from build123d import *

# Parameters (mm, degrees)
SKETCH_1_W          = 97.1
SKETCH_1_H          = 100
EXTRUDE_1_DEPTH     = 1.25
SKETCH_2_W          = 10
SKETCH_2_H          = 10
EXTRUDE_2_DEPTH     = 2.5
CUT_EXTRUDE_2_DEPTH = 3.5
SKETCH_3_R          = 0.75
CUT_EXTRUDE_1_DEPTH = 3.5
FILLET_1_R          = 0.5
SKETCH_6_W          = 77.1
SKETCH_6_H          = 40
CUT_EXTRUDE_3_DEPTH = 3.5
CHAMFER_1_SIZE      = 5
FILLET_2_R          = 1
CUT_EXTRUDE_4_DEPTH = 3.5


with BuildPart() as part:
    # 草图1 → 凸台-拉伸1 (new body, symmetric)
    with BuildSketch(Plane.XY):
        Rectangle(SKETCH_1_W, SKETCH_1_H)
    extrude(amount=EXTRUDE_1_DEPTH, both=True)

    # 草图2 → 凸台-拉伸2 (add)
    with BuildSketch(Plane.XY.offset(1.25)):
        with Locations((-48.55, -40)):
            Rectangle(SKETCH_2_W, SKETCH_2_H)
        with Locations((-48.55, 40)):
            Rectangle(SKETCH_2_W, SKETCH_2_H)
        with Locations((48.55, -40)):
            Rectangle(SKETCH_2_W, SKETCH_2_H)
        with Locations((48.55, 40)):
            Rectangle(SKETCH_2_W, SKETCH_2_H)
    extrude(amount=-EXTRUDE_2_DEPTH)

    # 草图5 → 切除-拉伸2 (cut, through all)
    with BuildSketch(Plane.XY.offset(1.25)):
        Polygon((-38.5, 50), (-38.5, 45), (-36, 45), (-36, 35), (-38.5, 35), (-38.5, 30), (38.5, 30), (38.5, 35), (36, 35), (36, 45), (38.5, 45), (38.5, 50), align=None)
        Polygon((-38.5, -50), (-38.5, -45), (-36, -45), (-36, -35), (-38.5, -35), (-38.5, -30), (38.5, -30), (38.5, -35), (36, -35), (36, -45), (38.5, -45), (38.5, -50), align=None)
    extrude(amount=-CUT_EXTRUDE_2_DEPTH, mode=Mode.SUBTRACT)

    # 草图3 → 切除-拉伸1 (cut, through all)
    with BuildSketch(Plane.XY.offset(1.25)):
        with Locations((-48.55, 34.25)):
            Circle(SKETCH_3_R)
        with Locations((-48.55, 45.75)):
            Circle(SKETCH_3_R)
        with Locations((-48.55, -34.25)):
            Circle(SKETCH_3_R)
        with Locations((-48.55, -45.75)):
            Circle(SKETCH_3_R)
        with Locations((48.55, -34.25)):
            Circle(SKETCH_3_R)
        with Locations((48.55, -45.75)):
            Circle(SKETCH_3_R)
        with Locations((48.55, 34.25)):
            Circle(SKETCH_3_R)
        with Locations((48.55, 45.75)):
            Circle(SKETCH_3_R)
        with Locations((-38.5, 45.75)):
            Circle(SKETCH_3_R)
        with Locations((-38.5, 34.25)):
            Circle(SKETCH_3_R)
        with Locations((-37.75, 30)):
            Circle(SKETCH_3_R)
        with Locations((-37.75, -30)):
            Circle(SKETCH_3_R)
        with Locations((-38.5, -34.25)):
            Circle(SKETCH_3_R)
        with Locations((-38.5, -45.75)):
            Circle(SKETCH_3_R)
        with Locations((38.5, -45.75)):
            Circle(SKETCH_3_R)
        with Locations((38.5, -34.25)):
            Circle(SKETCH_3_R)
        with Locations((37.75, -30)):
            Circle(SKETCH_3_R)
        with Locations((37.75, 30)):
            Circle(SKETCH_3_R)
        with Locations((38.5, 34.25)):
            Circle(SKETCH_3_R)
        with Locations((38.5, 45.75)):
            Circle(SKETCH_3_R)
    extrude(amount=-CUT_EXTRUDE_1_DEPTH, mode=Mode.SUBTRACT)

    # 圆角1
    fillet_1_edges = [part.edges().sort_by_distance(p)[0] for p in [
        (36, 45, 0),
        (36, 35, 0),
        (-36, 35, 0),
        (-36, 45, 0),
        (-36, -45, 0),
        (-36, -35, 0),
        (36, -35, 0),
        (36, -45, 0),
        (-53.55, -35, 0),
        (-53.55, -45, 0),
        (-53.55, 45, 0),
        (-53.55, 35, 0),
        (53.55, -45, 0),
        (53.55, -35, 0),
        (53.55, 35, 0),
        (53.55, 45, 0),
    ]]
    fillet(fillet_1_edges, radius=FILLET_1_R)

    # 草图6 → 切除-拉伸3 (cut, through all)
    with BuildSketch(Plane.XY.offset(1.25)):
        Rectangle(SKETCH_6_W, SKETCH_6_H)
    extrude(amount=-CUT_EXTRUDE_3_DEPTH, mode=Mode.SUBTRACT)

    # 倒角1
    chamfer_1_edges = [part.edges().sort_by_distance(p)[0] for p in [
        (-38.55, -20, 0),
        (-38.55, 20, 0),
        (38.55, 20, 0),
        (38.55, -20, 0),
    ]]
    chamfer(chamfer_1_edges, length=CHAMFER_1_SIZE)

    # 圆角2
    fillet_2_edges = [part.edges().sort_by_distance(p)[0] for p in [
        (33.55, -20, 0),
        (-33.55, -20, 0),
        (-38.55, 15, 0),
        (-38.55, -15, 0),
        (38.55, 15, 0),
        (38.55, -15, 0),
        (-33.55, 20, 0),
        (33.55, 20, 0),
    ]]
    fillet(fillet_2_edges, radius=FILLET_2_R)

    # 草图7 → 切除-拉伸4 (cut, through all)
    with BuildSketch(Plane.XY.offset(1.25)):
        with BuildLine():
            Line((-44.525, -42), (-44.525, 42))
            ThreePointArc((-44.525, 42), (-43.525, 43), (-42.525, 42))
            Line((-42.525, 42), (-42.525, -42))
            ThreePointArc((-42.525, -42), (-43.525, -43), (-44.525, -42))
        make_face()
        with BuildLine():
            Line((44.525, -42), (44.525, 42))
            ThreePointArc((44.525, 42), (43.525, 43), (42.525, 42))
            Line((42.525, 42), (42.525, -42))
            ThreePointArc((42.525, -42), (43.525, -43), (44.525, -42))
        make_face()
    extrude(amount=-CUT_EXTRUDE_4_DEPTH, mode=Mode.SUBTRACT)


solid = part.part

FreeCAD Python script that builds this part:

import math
import FreeCAD as App
import Part
import Sketcher
Q = App.Units.Quantity


def edges_at(feature, points):
    """Names of the edges that pass closest to the given points."""
    edges = feature.Shape.Edges
    near = lambda p: min(range(len(edges)), key=lambda i: edges[i].distToShape(Part.Vertex(*p))[0])
    return sorted({f"Edge{near(p) + 1}" for p in points})


def add_polygon(sketch, points):
    """Adds a closed chain of lines whose ends are joined by coincident constraints."""
    first, n = sketch.GeometryCount, len(points)
    for a, b in zip(points, points[1:] + points[:1]):
        sketch.addGeometry(Part.LineSegment(App.Vector(*a, 0), App.Vector(*b, 0)), False)
    for i in range(n):
        sketch.addConstraint(Sketcher.Constraint("Coincident", first + i, 2, first + (i + 1) % n, 1))

doc = App.newDocument("Part")
body = doc.addObject("PartDesign::Body", "Body")

sketch1 = doc.addObject("Sketcher::SketchObject", "Sketch")
body.addObject(sketch1)
sketch1.AttachmentSupport = (doc.XY_Plane, [""])
sketch1.MapMode = "FlatFace"
add_polygon(sketch1, [(-49, 50), (-49, -50), (49, -50), (49, 50)])
sketch1.addConstraint([
    Sketcher.Constraint("Vertical", 0),
    Sketcher.Constraint("Horizontal", 1),
    Sketcher.Constraint("Vertical", 2),
    Sketcher.Constraint("Horizontal", 3),
    Sketcher.Constraint("Symmetric", 0, 2, 2, 2, -1, 1),
    Sketcher.Constraint("DistanceY", 0, 2, 0, 1, Q("100 mm")),
    Sketcher.Constraint("DistanceX", 1, 1, 1, 2, Q("97.1 mm")),
])
pad1 = doc.addObject("PartDesign::Pad", "Pad")
body.addObject(pad1)
pad1.Profile = sketch1
pad1.Length = 2.5
pad1.Midplane = True

sketch2 = doc.addObject("Sketcher::SketchObject", "Sketch001")
body.addObject(sketch2)
sketch2.AttachmentSupport = (doc.XY_Plane, [""])
sketch2.MapMode = "FlatFace"
sketch2.AttachmentOffset = App.Placement(App.Vector(0, 0, 1.25), App.Rotation())
add_polygon(sketch2, [(-54, -35), (-54, -45), (-44, -45), (-44, -35)])
add_polygon(sketch2, [(-54, 45), (-54, 35), (-44, 35), (-44, 45)])
add_polygon(sketch2, [(44, -35), (44, -45), (54, -45), (54, -35)])
add_polygon(sketch2, [(44, 45), (44, 35), (54, 35), (54, 45)])
sketch2.addConstraint([
    Sketcher.Constraint("Vertical", 0),
    Sketcher.Constraint("Horizontal", 1),
    Sketcher.Constraint("Vertical", 2),
    Sketcher.Constraint("Horizontal", 3),
    Sketcher.Constraint("Vertical", 4),
    Sketcher.Constraint("Horizontal", 5),
    Sketcher.Constraint("Vertical", 6),
    Sketcher.Constraint("Horizontal", 7),
    Sketcher.Constraint("Vertical", 8),
    Sketcher.Constraint("Horizontal", 9),
    Sketcher.Constraint("Vertical", 10),
    Sketcher.Constraint("Horizontal", 11),
    Sketcher.Constraint("Vertical", 12),
    Sketcher.Constraint("Horizontal", 13),
    Sketcher.Constraint("Vertical", 14),
    Sketcher.Constraint("Horizontal", 15),
    Sketcher.Constraint("Symmetric", 6, 2, 8, 2, -1, 1),
    Sketcher.Constraint("Symmetric", 4, 2, 10, 2, -1, 1),
    Sketcher.Constraint("Symmetric", 2, 2, 12, 2, -1, 1),
    Sketcher.Constraint("Symmetric", 0, 2, 14, 2, -1, 1),
    Sketcher.Constraint("Symmetric", 1, 2, 8, 2, -2),
    Sketcher.Constraint("Symmetric", 3, 2, 10, 2, -2),
    Sketcher.Constraint("Equal", 15, 0),
    Sketcher.Constraint("DistanceX", 1, 1, 1, 2, Q("10 mm")),
    Sketcher.Constraint("DistanceY", 0, 2, -1, 1, Q("45 mm")),
    Sketcher.Constraint("DistanceX", 1, 2, 8, 2, Q("87.1 mm")),
])
pad2 = doc.addObject("PartDesign::Pad", "Pad001")
body.addObject(pad2)
pad2.Profile = sketch2
pad2.Length = 2.5
pad2.Reversed = True

sketch3 = doc.addObject("Sketcher::SketchObject", "Sketch002")
body.addObject(sketch3)
sketch3.AttachmentSupport = (doc.XY_Plane, [""])
sketch3.MapMode = "FlatFace"
sketch3.AttachmentOffset = App.Placement(App.Vector(0, 0, 1.25), App.Rotation())
add_polygon(sketch3, [(-38.5, 50), (-38.5, 45), (-36, 45), (-36, 35), (-38.5, 35), (-38.5, 30), (38.5, 30), (38.5, 35), (36, 35), (36, 45), (38.5, 45), (38.5, 50)])
add_polygon(sketch3, [(-38.5, -45), (-38.5, -50), (38.5, -50), (38.5, -45), (36, -45), (36, -35), (38.5, -35), (38.5, -30), (-38.5, -30), (-38.5, -35), (-36, -35), (-36, -45)])
sketch3.addConstraint([
    Sketcher.Constraint("Vertical", 0),
    Sketcher.Constraint("Horizontal", 1),
    Sketcher.Constraint("Vertical", 2),
    Sketcher.Constraint("Horizontal", 3),
    Sketcher.Constraint("Vertical", 4),
    Sketcher.Constraint("Horizontal", 5),
    Sketcher.Constraint("Vertical", 6),
    Sketcher.Constraint("Horizontal", 7),
    Sketcher.Constraint("Vertical", 8),
    Sketcher.Constraint("Horizontal", 9),
    Sketcher.Constraint("Vertical", 10),
    Sketcher.Constraint("Horizontal", 11),
    Sketcher.Constraint("Vertical", 12),
    Sketcher.Constraint("Horizontal", 13),
    Sketcher.Constraint("Vertical", 14),
    Sketcher.Constraint("Horizontal", 15),
    Sketcher.Constraint("Vertical", 16),
    Sketcher.Constraint("Horizontal", 17),
    Sketcher.Constraint("Vertical", 18),
    Sketcher.Constraint("Horizontal", 19),
    Sketcher.Constraint("Vertical", 20),
    Sketcher.Constraint("Horizontal", 21),
    Sketcher.Constraint("Vertical", 22),
    Sketcher.Constraint("Horizontal", 23),
    Sketcher.Constraint("Symmetric", 10, 2, 12, 2, -1, 1),
    Sketcher.Constraint("Symmetric", 0, 2, 14, 2, -1, 1),
    Sketcher.Constraint("Symmetric", 2, 2, 16, 2, -1, 1),
    Sketcher.Constraint("Symmetric", 4, 2, 18, 2, -1, 1),
    Sketcher.Constraint("Symmetric", 6, 2, 20, 2, -1, 1),
    Sketcher.Constraint("Symmetric", 8, 2, 22, 2, -1, 1),
    Sketcher.Constraint("Symmetric", 3, 2, 6, 2, -2),
    Sketcher.Constraint("Symmetric", 1, 2, 8, 2, -2),
    Sketcher.Constraint("Vertical", 0, 2, 3, 2),
    Sketcher.Constraint("Vertical", 6, 2, 9, 2),
    Sketcher.Constraint("Equal", 0, 4),
    Sketcher.Constraint("DistanceX", 5, 1, 5, 2, Q("77 mm")),
    Sketcher.Constraint("DistanceY", 0, 2, 0, 1, Q("5 mm")),
    Sketcher.Constraint("DistanceY", 2, 2, 2, 1, Q("10 mm")),
    Sketcher.Constraint("DistanceX", 1, 1, 1, 2, Q("2.5 mm")),
    Sketcher.Constraint("DistanceY", -1, 1, 0, 2, Q("45 mm")),
])
pocket1 = doc.addObject("PartDesign::Pocket", "Pocket")
body.addObject(pocket1)
pocket1.Profile = sketch3
pocket1.Type = "ThroughAll"

sketch4 = doc.addObject("Sketcher::SketchObject", "Sketch003")
body.addObject(sketch4)
sketch4.AttachmentSupport = (doc.XY_Plane, [""])
sketch4.MapMode = "FlatFace"
sketch4.AttachmentOffset = App.Placement(App.Vector(0, 0, 1.25), App.Rotation())
sketch4.addGeometry([
    Part.Circle(App.Vector(-48.5, 34.2, 0), App.Vector(0, 0, 1), 0.8),
    Part.Circle(App.Vector(-48.5, 45.8, 0), App.Vector(0, 0, 1), 0.8),
    Part.Circle(App.Vector(-48.5, -34.2, 0), App.Vector(0, 0, 1), 0.8),
    Part.Circle(App.Vector(-48.5, -45.8, 0), App.Vector(0, 0, 1), 0.8),
    Part.Circle(App.Vector(48.5, -34.2, 0), App.Vector(0, 0, 1), 0.8),
    Part.Circle(App.Vector(48.5, -45.8, 0), App.Vector(0, 0, 1), 0.8),
    Part.Circle(App.Vector(48.5, 34.2, 0), App.Vector(0, 0, 1), 0.8),
    Part.Circle(App.Vector(48.5, 45.8, 0), App.Vector(0, 0, 1), 0.8),
    Part.Circle(App.Vector(-38.5, 45.8, 0), App.Vector(0, 0, 1), 0.8),
    Part.Circle(App.Vector(-38.5, 34.2, 0), App.Vector(0, 0, 1), 0.8),
    Part.Circle(App.Vector(-37.8, 30, 0), App.Vector(0, 0, 1), 0.8),
    Part.Circle(App.Vector(-37.8, -30, 0), App.Vector(0, 0, 1), 0.8),
    Part.Circle(App.Vector(-38.5, -34.2, 0), App.Vector(0, 0, 1), 0.8),
    Part.Circle(App.Vector(-38.5, -45.8, 0), App.Vector(0, 0, 1), 0.8),
    Part.Circle(App.Vector(38.5, -45.8, 0), App.Vector(0, 0, 1), 0.8),
    Part.Circle(App.Vector(38.5, -34.2, 0), App.Vector(0, 0, 1), 0.8),
    Part.Circle(App.Vector(37.8, -30, 0), App.Vector(0, 0, 1), 0.8),
    Part.Circle(App.Vector(37.8, 30, 0), App.Vector(0, 0, 1), 0.8),
    Part.Circle(App.Vector(38.5, 34.2, 0), App.Vector(0, 0, 1), 0.8),
    Part.Circle(App.Vector(38.5, 45.8, 0), App.Vector(0, 0, 1), 0.8),
], False)
sketch4.addConstraint([
    Sketcher.Constraint("Equal", 0, 1),
    Sketcher.Constraint("Equal", 1, 2),
    Sketcher.Constraint("Equal", 2, 3),
    Sketcher.Constraint("Equal", 3, 4),
    Sketcher.Constraint("Equal", 4, 5),
    Sketcher.Constraint("Equal", 5, 6),
    Sketcher.Constraint("Equal", 6, 7),
    Sketcher.Constraint("Equal", 7, 8),
    Sketcher.Constraint("Equal", 8, 9),
    Sketcher.Constraint("Equal", 9, 10),
    Sketcher.Constraint("Equal", 10, 11),
    Sketcher.Constraint("Equal", 11, 12),
    Sketcher.Constraint("Equal", 12, 13),
    Sketcher.Constraint("Equal", 13, 14),
    Sketcher.Constraint("Equal", 14, 15),
    Sketcher.Constraint("Equal", 15, 16),
    Sketcher.Constraint("Equal", 16, 17),
    Sketcher.Constraint("Equal", 17, 18),
    Sketcher.Constraint("Equal", 18, 19),
    Sketcher.Constraint("Symmetric", 0, 3, 4, 3, -1, 1),
    Sketcher.Constraint("Symmetric", 1, 3, 5, 3, -1, 1),
    Sketcher.Constraint("Symmetric", 2, 3, 6, 3, -1, 1),
    Sketcher.Constraint("Symmetric", 3, 3, 7, 3, -1, 1),
    Sketcher.Constraint("Symmetric", 8, 3, 14, 3, -1, 1),
    Sketcher.Constraint("Symmetric", 9, 3, 15, 3, -1, 1),
    Sketcher.Constraint("Symmetric", 10, 3, 16, 3, -1, 1),
    Sketcher.Constraint("Symmetric", 11, 3, 17, 3, -1, 1),
    Sketcher.Constraint("Symmetric", 12, 3, 18, 3, -1, 1),
    Sketcher.Constraint("Symmetric", 13, 3, 19, 3, -1, 1),
    Sketcher.Constraint("Symmetric", 2, 3, 4, 3, -2),
    Sketcher.Constraint("Symmetric", 3, 3, 5, 3, -2),
    Sketcher.Constraint("Symmetric", 13, 3, 14, 3, -2),
    Sketcher.Constraint("Symmetric", 12, 3, 15, 3, -2),
    Sketcher.Constraint("Symmetric", 11, 3, 16, 3, -2),
    Sketcher.Constraint("Horizontal", 7, 3, 8, 3),
    Sketcher.Constraint("Horizontal", 6, 3, 9, 3),
    Sketcher.Constraint("Vertical", 0, 3, 1, 3),
    Sketcher.Constraint("Vertical", 8, 3, 9, 3),
    Sketcher.Constraint("Diameter", 0, Q("1.5 mm")),
    Sketcher.Constraint("DistanceY", -1, 1, 10, 3, Q("30 mm")),
    Sketcher.Constraint("DistanceY", 2, 3, 1, 3, Q("80 mm")),
    Sketcher.Constraint("DistanceX", 13, 3, 14, 3, Q("77 mm")),
    Sketcher.Constraint("DistanceY", 0, 3, 1, 3, Q("11.5 mm")),
    Sketcher.Constraint("DistanceX", 2, 3, 4, 3, Q("97.1 mm")),
    Sketcher.Constraint("DistanceX", 0, 3, 10, 3, Q("10.8 mm")),
])
pocket2 = doc.addObject("PartDesign::Pocket", "Pocket001")
body.addObject(pocket2)
pocket2.Profile = sketch4
pocket2.Type = "ThroughAll"
doc.recompute()

fillet = doc.addObject("PartDesign::Fillet", "Fillet")
body.addObject(fillet)
fillet.Base = (pocket2, edges_at(pocket2, [
    (36, 45, 0),
    (36, 35, 0),
    (-36, 35, 0),
    (-36, 45, 0),
    (-36, -45, 0),
    (-36, -35, 0),
    (36, -35, 0),
    (36, -45, 0),
    (-53.55, -35, 0),
    (-53.55, -45, 0),
    (-53.55, 45, 0),
    (-53.55, 35, 0),
    (53.55, -45, 0),
    (53.55, -35, 0),
    (53.55, 35, 0),
    (53.55, 45, 0),
]))
fillet.Radius = 0.5

sketch5 = doc.addObject("Sketcher::SketchObject", "Sketch004")
body.addObject(sketch5)
sketch5.AttachmentSupport = (doc.XY_Plane, [""])
sketch5.MapMode = "FlatFace"
sketch5.AttachmentOffset = App.Placement(App.Vector(0, 0, 1.25), App.Rotation())
add_polygon(sketch5, [(-39, 20), (-39, -20), (39, -20), (39, 20)])
sketch5.addConstraint([
    Sketcher.Constraint("Vertical", 0),
    Sketcher.Constraint("Horizontal", 1),
    Sketcher.Constraint("Vertical", 2),
    Sketcher.Constraint("Horizontal", 3),
    Sketcher.Constraint("Symmetric", 0, 2, 2, 2, -1, 1),
    Sketcher.Constraint("DistanceY", 0, 2, 0, 1, Q("40 mm")),
    Sketcher.Constraint("DistanceX", 1, 1, 1, 2, Q("77.1 mm")),
])
pocket3 = doc.addObject("PartDesign::Pocket", "Pocket002")
body.addObject(pocket3)
pocket3.Profile = sketch5
pocket3.Type = "ThroughAll"
doc.recompute()

chamfer = doc.addObject("PartDesign::Chamfer", "Chamfer")
body.addObject(chamfer)
chamfer.Base = (pocket3, edges_at(pocket3, [
    (-38.55, -20, 0),
    (-38.55, 20, 0),
    (38.55, 20, 0),
    (38.55, -20, 0),
]))
chamfer.Size = 5
doc.recompute()

fillet2 = doc.addObject("PartDesign::Fillet", "Fillet001")
body.addObject(fillet2)
fillet2.Base = (chamfer, edges_at(chamfer, [
    (33.55, -20, 0),
    (-33.55, -20, 0),
    (-38.55, 15, 0),
    (-38.55, -15, 0),
    (38.55, 15, 0),
    (38.55, -15, 0),
    (-33.55, 20, 0),
    (33.55, 20, 0),
]))
fillet2.Radius = 1

sketch6 = doc.addObject("Sketcher::SketchObject", "Sketch005")
body.addObject(sketch6)
sketch6.AttachmentSupport = (doc.XY_Plane, [""])
sketch6.MapMode = "FlatFace"
sketch6.AttachmentOffset = App.Placement(App.Vector(0, 0, 1.25), App.Rotation())
sketch6.addGeometry([
    Part.LineSegment(App.Vector(-44.5, 42, 0), App.Vector(-44.5, -42, 0)),
    Part.ArcOfCircle(Part.Circle(App.Vector(-43.5, -42, 0), App.Vector(0, 0, 1), 1), math.radians(180), math.radians(360)),
    Part.LineSegment(App.Vector(-42.5, -42, 0), App.Vector(-42.5, 42, 0)),
    Part.ArcOfCircle(Part.Circle(App.Vector(-43.5, 42, 0), App.Vector(0, 0, 1), 1), math.radians(0), math.radians(180)),
    Part.LineSegment(App.Vector(44.5, -42, 0), App.Vector(44.5, 42, 0)),
    Part.ArcOfCircle(Part.Circle(App.Vector(43.5, 42, 0), App.Vector(0, 0, 1), 1), math.radians(0), math.radians(180)),
    Part.LineSegment(App.Vector(42.5, 42, 0), App.Vector(42.5, -42, 0)),
    Part.ArcOfCircle(Part.Circle(App.Vector(43.5, -42, 0), App.Vector(0, 0, 1), 1), math.radians(180), math.radians(360)),
], False)
sketch6.addConstraint([
    Sketcher.Constraint("Tangent", 0, 2, 1, 1),
    Sketcher.Constraint("Tangent", 1, 2, 2, 1),
    Sketcher.Constraint("Tangent", 2, 2, 3, 1),
    Sketcher.Constraint("Tangent", 3, 2, 0, 1),
    Sketcher.Constraint("Tangent", 4, 2, 5, 1),
    Sketcher.Constraint("Tangent", 5, 2, 6, 1),
    Sketcher.Constraint("Tangent", 6, 2, 7, 1),
    Sketcher.Constraint("Tangent", 7, 2, 4, 1),
    Sketcher.Constraint("Vertical", 0),
    Sketcher.Constraint("Vertical", 2),
    Sketcher.Constraint("Vertical", 4),
    Sketcher.Constraint("Vertical", 6),
    Sketcher.Constraint("Equal", 3, 5),
    Sketcher.Constraint("Symmetric", 1, 3, 5, 3, -1, 1),
    Sketcher.Constraint("Horizontal", 3, 3, 5, 3),
    Sketcher.Constraint("Horizontal", 1, 3, 7, 3),
    Sketcher.Constraint("Radius", 1, Q("1 mm")),
    Sketcher.Constraint("DistanceY", 0, 2, 0, 1, Q("84 mm")),
    Sketcher.Constraint("DistanceX", 3, 3, 5, 3, Q("87.05 mm")),
])
pocket4 = doc.addObject("PartDesign::Pocket", "Pocket003")
body.addObject(pocket4)
pocket4.Profile = sketch6
pocket4.Type = "ThroughAll"

doc.recompute()
